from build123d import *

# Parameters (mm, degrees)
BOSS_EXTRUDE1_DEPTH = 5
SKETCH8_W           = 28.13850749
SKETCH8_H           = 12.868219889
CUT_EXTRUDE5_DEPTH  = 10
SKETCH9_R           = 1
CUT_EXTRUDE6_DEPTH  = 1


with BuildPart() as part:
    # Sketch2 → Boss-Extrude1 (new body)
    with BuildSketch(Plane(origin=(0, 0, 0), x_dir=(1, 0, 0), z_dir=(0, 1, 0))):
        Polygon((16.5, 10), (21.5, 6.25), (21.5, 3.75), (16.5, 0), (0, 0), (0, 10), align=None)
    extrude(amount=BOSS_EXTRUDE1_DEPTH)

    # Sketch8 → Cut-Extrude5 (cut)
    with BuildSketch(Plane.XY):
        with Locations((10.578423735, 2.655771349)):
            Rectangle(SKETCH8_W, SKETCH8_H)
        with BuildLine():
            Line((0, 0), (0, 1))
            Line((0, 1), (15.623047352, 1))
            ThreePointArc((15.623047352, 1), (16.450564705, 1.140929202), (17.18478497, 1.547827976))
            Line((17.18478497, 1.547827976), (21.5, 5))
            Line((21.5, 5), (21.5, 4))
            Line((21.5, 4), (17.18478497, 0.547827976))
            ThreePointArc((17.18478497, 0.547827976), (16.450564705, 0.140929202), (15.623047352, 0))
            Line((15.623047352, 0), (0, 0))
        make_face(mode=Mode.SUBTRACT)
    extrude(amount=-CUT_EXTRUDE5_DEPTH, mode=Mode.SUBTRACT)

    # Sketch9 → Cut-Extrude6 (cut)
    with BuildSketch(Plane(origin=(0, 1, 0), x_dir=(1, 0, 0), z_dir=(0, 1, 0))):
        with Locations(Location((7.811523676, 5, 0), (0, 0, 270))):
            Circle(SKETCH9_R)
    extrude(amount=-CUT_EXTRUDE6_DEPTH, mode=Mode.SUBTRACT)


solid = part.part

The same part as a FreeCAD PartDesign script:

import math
import FreeCAD as App
import Part
import Sketcher

doc = App.newDocument("Part")
params = doc.addObject("Spreadsheet::Sheet", "Params")
for row, (alias, value) in enumerate([
    ("sketch1_height", "10 mm"),
    ("sketch1_width", "16.5 mm"),
    ("sketch1_height2", "2.5 mm"),
    ("pad1_length", "5 mm"),
    ("sketch2_radius", "2.5 mm"),
    ("sketch2_height", "1 mm"),
    ("pocket1_length", "10 mm"),
    ("sketch3_diameter", "2 mm"),
    ("pocket2_length", "1 mm"),
], start=1):
    params.set(f"A{row}", alias)
    params.set(f"B{row}", "=" + value)
    params.setAlias(f"B{row}", alias)

body = doc.addObject("PartDesign::Body", "Body")

# Sketch on XZ plane
sketch1 = doc.addObject("Sketcher::SketchObject", "Sketch")
body.addObject(sketch1)
sketch1.AttachmentSupport = (doc.XZ_Plane, [""])
sketch1.MapMode = "FlatFace"
sketch1.addGeometry(Part.LineSegment(App.Vector(21.5, -6.25, 0), App.Vector(16.5, -10, 0)), False)
sketch1.addGeometry(Part.LineSegment(App.Vector(16.5, -10, 0), App.Vector(0, -10, 0)), False)
sketch1.addGeometry(Part.LineSegment(App.Vector(0, -10, 0), App.Vector(0, 0, 0)), False)
sketch1.addGeometry(Part.LineSegment(App.Vector(0, 0, 0), App.Vector(16.5, 0, 0)), False)
sketch1.addGeometry(Part.LineSegment(App.Vector(16.5, 0, 0), App.Vector(21.5, -3.75, 0)), False)
sketch1.addGeometry(Part.LineSegment(App.Vector(21.5, -3.75, 0), App.Vector(21.5, -6.25, 0)), False)
sketch1.addConstraint(Sketcher.Constraint("Coincident", 0, 2, 1, 1))
sketch1.addConstraint(Sketcher.Constraint("Coincident", 1, 2, 2, 1))
sketch1.addConstraint(Sketcher.Constraint("Coincident", 2, 2, 3, 1))
sketch1.addConstraint(Sketcher.Constraint("Coincident", 3, 2, 4, 1))
sketch1.addConstraint(Sketcher.Constraint("Coincident", 4, 2, 5, 1))
sketch1.addConstraint(Sketcher.Constraint("Coincident", 5, 2, 0, 1))
sketch1.addConstraint(Sketcher.Constraint("Horizontal", 1))
sketch1.addConstraint(Sketcher.Constraint("Vertical", 2))
sketch1.addConstraint(Sketcher.Constraint("Horizontal", 3))
sketch1.addConstraint(Sketcher.Constraint("Vertical", 5))
sketch1.addConstraint(Sketcher.Constraint("Coincident", 2, 2, -1, 1))
sketch1.addConstraint(Sketcher.Constraint("Vertical", 0, 2, 3, 2))
sketch1.addConstraint(Sketcher.Constraint("Equal", 0, 4))
sketch1.addConstraint(Sketcher.Constraint("DistanceY", 2, 1, 2, 2, 10.0))
sketch1.addConstraint(Sketcher.Constraint("DistanceX", 1, 2, 1, 1, 16.5))
sketch1.addConstraint(Sketcher.Constraint("DistanceY", 5, 2, 5, 1, 2.5))
sketch1.addConstraint(Sketcher.Constraint("DistanceX", 3, 2, 4, 2, 5.0))
sketch1.setExpression("Constraints[13]", "Params.sketch1_height")
sketch1.setExpression("Constraints[14]", "Params.sketch1_width")
sketch1.setExpression("Constraints[15]", "Params.sketch1_height2")
pad1 = doc.addObject("PartDesign::Pad", "Pad")
body.addObject(pad1)
pad1.Profile = sketch1
pad1.setExpression("Length", "Params.pad1_length")
pad1.Reversed = True

# Sketch on XY plane
sketch2 = doc.addObject("Sketcher::SketchObject", "Sketch001")
body.addObject(sketch2)
sketch2.AttachmentSupport = (doc.XY_Plane, [""])
sketch2.MapMode = "FlatFace"
sketch2.addGeometry(Part.LineSegment(App.Vector(-3.49083, 9.089881, 0), App.Vector(-3.49083, -3.778339, 0)), False)
sketch2.addGeometry(Part.LineSegment(App.Vector(-3.49083, -3.778339, 0), App.Vector(24.647677, -3.778339, 0)), False)
sketch2.addGeometry(Part.LineSegment(App.Vector(24.647677, -3.778339, 0), App.Vector(24.647677, 9.089881, 0)), False)
sketch2.addGeometry(Part.LineSegment(App.Vector(24.647677, 9.089881, 0), App.Vector(-3.49083, 9.089881, 0)), False)
sketch2.addGeometry(Part.LineSegment(App.Vector(15.623047, 0, 0), App.Vector(0, 0, 0)), False)
sketch2.addGeometry(Part.LineSegment(App.Vector(0, 0, 0), App.Vector(0, 1, 0)), False)
sketch2.addGeometry(Part.LineSegment(App.Vector(0, 1, 0), App.Vector(15.623047, 1, 0)), False)
sketch2.addGeometry(Part.ArcOfCircle(Part.Circle(App.Vector(15.623047, 3.5, 0), App.Vector(0, 0, 1), 2.5), math.radians(-90), math.radians(-51.340192)), False)
sketch2.addGeometry(Part.LineSegment(App.Vector(17.184785, 1.547828, 0), App.Vector(21.5, 5, 0)), False)
sketch2.addGeometry(Part.LineSegment(App.Vector(21.5, 5, 0), App.Vector(21.5, 4, 0)), False)
sketch2.addGeometry(Part.LineSegment(App.Vector(21.5, 4, 0), App.Vector(17.184785, 0.547828, 0)), False)
sketch2.addGeometry(Part.ArcOfCircle(Part.Circle(App.Vector(15.623047, 2.5, 0), App.Vector(0, 0, 1), 2.5), math.radians(-90), math.radians(-51.340192)), False)
sketch2.addConstraint(Sketcher.Constraint("Coincident", 0, 2, 1, 1))
sketch2.addConstraint(Sketcher.Constraint("Coincident", 1, 2, 2, 1))
sketch2.addConstraint(Sketcher.Constraint("Coincident", 2, 2, 3, 1))
sketch2.addConstraint(Sketcher.Constraint("Coincident", 3, 2, 0, 1))
sketch2.addConstraint(Sketcher.Constraint("Coincident", 4, 2, 5, 1))
sketch2.addConstraint(Sketcher.Constraint("Coincident", 5, 2, 6, 1))
sketch2.addConstraint(Sketcher.Constraint("Tangent", 6, 2, 7, 1))
sketch2.addConstraint(Sketcher.Constraint("Tangent", 7, 2, 8, 1))
sketch2.addConstraint(Sketcher.Constraint("Coincident", 8, 2, 9, 1))
sketch2.addConstraint(Sketcher.Constraint("Coincident", 9, 2, 10, 1))
sketch2.addConstraint(Sketcher.Constraint("Tangent", 10, 2, 11, 2))
sketch2.addConstraint(Sketcher.Constraint("Tangent", 11, 1, 4, 1))
sketch2.addConstraint(Sketcher.Constraint("Vertical", 0))
sketch2.addConstraint(Sketcher.Constraint("Horizontal", 1))
sketch2.addConstraint(Sketcher.Constraint("Vertical", 2))
sketch2.addConstraint(Sketcher.Constraint("Horizontal", 3))
sketch2.addConstraint(Sketcher.Constraint("Horizontal", 4))
sketch2.addConstraint(Sketcher.Constraint("Vertical", 5))
sketch2.addConstraint(Sketcher.Constraint("Horizontal", 6))
sketch2.addConstraint(Sketcher.Constraint("Vertical", 9))
sketch2.addConstraint(Sketcher.Constraint("Coincident", 4, 2, -1, 1))
sketch2.addConstraint(Sketcher.Constraint("Equal", 7, 11))
sketch2.addConstraint(Sketcher.Constraint("Parallel", 8, 10))
sketch2.addConstraint(Sketcher.Constraint("Vertical", 7, 3, 11, 3))
sketch2.addConstraint(Sketcher.Constraint("Radius", 7, 2.5))
sketch2.addConstraint(Sketcher.Constraint("DistanceY", 5, 1, 5, 2, 1.0))
sketch2.addConstraint(Sketcher.Constraint("DistanceY", -1, 1, 8, 2, 5.0))
sketch2.addConstraint(Sketcher.Constraint("DistanceX", -1, 1, 8, 2, 21.5))
sketch2.addConstraint(Sketcher.Constraint("DistanceY", 0, 2, 0, 1, 12.86822))
sketch2.addConstraint(Sketcher.Constraint("Distance", 8, 5.526172))
sketch2.addConstraint(Sketcher.Constraint("DistanceX", 1, 1, 1, 2, 28.138507))
sketch2.addConstraint(Sketcher.Constraint("DistanceX", 0, 2, -1, 1, 3.49083))
sketch2.addConstraint(Sketcher.Constraint("DistanceY", 0, 2, -1, 1, 3.778339))
sketch2.setExpression("Constraints[24]", "Params.sketch2_radius")
sketch2.setExpression("Constraints[25]", "Params.sketch2_height")
pocket1 = doc.addObject("PartDesign::Pocket", "Pocket")
body.addObject(pocket1)
pocket1.Profile = sketch2
pocket1.setExpression("Length", "Params.pocket1_length")

# Sketch on XZ plane
sketch3 = doc.addObject("Sketcher::SketchObject", "Sketch002")
body.addObject(sketch3)
sketch3.AttachmentSupport = (doc.XZ_Plane, [""])
sketch3.MapMode = "FlatFace"
sketch3.AttachmentOffset = App.Placement(App.Vector(0, 0, -1), App.Rotation())
sketch3.addGeometry(Part.Circle(App.Vector(7.811524, -5, 0), App.Vector(0, 0, 1), 1), False)
sketch3.addConstraint(Sketcher.Constraint("Diameter", 0, 2.0))
sketch3.addConstraint(Sketcher.Constraint("DistanceY", 0, 3, -1, 1, 5.0))
sketch3.addConstraint(Sketcher.Constraint("DistanceX", -1, 1, 0, 3, 7.811524))
sketch3.setExpression("Constraints[0]", "Params.sketch3_diameter")
pocket2 = doc.addObject("PartDesign::Pocket", "Pocket001")
body.addObject(pocket2)
pocket2.Profile = sketch3
pocket2.setExpression("Length", "Params.pocket2_length")
pocket2.Reversed = True

doc.recompute()
